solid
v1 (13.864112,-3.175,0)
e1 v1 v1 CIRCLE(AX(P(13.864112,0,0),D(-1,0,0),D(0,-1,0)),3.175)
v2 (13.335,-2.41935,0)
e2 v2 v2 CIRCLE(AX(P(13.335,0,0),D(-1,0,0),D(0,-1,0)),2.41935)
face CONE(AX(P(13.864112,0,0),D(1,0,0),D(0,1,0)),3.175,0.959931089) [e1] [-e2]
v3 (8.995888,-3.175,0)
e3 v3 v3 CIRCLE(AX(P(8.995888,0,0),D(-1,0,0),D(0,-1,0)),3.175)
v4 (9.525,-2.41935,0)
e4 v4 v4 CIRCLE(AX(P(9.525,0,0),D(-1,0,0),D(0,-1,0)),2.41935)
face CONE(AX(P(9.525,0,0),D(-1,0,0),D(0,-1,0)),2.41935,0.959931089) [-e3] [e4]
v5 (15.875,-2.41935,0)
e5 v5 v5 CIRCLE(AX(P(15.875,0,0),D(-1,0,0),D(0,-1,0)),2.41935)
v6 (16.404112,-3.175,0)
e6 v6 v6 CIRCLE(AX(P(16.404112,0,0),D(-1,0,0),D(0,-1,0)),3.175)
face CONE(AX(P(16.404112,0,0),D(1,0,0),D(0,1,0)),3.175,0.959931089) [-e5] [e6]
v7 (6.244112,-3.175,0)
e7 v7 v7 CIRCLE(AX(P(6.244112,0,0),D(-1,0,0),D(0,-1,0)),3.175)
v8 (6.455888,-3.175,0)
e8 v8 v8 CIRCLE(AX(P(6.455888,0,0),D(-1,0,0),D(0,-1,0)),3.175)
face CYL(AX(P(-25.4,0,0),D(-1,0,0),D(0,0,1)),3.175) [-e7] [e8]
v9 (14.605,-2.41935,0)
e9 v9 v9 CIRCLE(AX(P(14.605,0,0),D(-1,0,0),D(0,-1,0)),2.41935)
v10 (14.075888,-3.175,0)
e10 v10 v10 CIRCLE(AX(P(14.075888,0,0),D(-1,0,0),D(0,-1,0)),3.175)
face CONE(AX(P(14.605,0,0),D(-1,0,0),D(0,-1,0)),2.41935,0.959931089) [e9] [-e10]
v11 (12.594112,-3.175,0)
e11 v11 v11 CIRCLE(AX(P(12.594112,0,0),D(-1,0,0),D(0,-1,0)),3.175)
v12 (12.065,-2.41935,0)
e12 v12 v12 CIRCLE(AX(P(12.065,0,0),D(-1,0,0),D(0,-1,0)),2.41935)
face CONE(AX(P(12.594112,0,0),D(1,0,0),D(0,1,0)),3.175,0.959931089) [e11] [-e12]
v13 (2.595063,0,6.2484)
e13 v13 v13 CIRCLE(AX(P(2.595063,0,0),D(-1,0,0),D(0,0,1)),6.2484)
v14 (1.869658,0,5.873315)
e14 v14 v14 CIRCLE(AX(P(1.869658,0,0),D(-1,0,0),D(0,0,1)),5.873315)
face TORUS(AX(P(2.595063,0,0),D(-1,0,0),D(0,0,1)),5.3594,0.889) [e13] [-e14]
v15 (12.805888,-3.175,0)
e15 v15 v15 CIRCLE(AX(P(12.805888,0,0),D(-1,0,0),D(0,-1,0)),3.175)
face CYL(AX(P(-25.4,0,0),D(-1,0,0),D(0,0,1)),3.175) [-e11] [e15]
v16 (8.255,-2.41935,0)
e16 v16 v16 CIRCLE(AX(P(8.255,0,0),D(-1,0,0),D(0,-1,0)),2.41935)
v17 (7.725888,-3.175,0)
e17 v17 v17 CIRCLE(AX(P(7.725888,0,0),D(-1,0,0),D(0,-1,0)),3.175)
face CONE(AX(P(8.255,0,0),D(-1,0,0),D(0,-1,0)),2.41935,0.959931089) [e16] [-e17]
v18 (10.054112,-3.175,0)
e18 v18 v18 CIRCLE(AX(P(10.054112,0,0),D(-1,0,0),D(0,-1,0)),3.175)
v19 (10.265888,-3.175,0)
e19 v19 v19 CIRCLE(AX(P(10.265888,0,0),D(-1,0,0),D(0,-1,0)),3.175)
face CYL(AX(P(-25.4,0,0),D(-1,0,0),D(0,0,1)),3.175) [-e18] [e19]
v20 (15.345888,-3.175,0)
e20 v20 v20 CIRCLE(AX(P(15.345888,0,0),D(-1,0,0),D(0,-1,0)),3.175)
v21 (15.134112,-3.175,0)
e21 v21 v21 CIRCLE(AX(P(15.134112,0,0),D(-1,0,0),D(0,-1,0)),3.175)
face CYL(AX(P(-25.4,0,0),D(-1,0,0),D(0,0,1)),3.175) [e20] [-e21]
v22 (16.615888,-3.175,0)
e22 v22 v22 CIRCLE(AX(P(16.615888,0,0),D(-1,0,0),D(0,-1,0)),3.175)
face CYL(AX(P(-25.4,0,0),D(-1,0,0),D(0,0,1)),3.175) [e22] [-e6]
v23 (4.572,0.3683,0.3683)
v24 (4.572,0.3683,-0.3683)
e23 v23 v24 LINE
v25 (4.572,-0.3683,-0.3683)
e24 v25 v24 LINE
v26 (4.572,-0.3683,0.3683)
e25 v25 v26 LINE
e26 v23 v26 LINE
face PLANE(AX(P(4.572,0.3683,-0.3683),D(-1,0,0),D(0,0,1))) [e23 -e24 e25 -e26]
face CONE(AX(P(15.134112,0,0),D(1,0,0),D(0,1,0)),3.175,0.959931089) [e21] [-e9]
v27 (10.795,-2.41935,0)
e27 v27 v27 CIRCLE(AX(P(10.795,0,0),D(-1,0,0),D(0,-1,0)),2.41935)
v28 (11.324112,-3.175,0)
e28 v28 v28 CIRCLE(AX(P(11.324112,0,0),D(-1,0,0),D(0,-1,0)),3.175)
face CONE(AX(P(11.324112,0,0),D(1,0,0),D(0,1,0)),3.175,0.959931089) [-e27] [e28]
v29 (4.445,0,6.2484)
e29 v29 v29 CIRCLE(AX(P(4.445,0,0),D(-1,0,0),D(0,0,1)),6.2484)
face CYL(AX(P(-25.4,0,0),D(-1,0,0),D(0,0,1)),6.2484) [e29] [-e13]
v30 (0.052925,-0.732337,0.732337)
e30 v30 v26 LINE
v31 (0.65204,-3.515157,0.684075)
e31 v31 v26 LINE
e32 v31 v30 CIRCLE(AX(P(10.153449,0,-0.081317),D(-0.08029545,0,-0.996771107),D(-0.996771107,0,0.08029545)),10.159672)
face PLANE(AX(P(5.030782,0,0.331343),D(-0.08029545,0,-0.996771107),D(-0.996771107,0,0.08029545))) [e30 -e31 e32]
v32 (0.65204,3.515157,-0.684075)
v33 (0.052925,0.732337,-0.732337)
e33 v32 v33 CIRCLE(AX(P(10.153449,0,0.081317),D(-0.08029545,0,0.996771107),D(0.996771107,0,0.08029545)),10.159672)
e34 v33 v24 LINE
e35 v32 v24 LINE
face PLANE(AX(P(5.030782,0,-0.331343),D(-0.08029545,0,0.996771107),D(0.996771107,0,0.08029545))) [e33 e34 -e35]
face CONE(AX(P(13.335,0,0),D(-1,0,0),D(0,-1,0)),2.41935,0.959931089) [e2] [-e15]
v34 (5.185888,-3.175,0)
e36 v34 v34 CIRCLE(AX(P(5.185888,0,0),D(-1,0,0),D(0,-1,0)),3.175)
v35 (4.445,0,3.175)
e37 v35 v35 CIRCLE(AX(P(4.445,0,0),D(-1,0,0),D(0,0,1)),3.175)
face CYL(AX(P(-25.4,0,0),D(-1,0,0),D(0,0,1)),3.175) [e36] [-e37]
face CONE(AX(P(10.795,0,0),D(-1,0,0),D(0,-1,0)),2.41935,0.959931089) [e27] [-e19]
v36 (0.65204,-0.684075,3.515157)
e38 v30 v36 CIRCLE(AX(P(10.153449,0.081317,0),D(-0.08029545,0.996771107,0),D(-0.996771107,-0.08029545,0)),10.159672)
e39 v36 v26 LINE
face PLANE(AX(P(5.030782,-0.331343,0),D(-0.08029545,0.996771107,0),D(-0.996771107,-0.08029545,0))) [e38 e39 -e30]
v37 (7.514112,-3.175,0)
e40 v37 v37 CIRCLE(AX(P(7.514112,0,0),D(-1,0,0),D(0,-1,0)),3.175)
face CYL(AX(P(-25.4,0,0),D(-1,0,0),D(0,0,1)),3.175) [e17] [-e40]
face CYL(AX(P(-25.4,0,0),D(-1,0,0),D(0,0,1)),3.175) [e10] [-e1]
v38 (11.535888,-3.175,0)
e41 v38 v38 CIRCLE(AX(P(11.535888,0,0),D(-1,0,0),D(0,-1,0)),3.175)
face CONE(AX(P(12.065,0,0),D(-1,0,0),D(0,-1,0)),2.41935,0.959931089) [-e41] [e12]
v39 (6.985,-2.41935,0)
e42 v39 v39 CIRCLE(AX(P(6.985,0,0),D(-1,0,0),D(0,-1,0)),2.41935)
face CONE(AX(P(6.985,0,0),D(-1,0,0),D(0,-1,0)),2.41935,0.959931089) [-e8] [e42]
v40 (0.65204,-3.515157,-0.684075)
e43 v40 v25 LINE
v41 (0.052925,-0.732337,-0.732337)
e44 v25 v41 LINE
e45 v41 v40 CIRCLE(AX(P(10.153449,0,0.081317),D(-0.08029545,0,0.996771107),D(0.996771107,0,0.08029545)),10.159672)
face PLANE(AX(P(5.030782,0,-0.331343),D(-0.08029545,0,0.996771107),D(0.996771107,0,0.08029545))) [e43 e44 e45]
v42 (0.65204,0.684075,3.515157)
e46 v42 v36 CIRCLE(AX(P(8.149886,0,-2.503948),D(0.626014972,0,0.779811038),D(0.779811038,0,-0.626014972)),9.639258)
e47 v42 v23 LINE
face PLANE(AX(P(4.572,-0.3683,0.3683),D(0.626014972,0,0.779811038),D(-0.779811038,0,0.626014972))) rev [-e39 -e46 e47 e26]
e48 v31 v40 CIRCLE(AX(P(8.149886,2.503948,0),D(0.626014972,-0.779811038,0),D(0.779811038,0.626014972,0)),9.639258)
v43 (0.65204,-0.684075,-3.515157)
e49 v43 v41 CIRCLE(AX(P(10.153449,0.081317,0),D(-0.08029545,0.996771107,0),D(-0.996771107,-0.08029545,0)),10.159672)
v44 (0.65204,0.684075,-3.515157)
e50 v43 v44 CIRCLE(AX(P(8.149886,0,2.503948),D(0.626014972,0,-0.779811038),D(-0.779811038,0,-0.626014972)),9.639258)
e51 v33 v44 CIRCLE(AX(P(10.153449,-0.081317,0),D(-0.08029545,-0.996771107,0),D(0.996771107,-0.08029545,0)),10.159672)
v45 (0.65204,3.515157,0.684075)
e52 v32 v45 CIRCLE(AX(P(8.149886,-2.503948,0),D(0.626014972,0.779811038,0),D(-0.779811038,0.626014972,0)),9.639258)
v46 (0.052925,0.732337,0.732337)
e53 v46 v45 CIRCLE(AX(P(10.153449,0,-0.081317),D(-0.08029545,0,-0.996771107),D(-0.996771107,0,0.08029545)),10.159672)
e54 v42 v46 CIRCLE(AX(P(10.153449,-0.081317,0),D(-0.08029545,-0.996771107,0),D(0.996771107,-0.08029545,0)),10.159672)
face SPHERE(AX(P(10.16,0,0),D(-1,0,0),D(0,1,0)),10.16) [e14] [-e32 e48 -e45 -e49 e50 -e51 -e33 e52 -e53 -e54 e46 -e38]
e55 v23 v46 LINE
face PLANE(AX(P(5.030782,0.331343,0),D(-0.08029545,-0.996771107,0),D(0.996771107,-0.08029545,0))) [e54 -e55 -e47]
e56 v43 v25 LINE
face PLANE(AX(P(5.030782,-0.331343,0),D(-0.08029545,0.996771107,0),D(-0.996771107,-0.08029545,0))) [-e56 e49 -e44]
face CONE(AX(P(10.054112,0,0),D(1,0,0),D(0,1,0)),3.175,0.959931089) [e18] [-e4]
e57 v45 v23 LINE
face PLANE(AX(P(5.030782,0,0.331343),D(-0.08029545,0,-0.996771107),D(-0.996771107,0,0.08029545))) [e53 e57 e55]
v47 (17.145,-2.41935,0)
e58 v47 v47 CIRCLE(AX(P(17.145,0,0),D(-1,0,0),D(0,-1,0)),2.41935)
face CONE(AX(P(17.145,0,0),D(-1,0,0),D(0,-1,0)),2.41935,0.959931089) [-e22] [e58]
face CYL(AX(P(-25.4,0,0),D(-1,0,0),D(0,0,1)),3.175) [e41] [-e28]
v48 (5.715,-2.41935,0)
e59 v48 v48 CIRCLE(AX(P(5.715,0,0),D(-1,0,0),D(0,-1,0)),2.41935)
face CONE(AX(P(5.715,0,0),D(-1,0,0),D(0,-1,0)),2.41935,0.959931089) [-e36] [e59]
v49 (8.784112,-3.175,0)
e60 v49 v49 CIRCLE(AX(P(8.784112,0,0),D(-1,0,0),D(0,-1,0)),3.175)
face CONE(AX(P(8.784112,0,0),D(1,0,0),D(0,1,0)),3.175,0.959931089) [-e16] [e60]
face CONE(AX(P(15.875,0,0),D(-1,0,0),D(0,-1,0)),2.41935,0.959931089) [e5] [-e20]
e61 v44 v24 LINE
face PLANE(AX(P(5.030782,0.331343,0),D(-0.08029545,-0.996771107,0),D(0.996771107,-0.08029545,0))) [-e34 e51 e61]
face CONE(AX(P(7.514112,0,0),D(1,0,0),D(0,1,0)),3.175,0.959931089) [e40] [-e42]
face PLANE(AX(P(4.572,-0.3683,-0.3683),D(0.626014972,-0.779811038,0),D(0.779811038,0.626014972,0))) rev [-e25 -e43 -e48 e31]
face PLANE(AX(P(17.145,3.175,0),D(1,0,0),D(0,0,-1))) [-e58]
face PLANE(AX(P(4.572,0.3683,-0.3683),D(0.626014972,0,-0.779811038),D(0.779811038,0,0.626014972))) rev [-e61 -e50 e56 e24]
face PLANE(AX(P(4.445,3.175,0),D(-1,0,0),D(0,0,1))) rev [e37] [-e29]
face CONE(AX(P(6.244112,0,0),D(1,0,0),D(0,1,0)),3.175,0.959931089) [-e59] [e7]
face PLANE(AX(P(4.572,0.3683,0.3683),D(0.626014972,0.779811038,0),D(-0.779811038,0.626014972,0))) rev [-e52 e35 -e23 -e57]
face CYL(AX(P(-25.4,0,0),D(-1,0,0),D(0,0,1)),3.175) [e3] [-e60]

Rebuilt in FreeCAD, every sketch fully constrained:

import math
import FreeCAD as App
import Part
import Sketcher

V = App.Vector
Q = App.Units.Quantity


def add_polygon(sketch, points):
    """Adds a closed chain of lines whose ends are joined by coincident constraints."""
    first, n = sketch.GeometryCount, len(points)
    for a, b in zip(points, points[1:] + points[:1]):
        sketch.addGeometry(Part.LineSegment(App.Vector(*a, 0), App.Vector(*b, 0)), False)
    for i in range(n):
        sketch.addConstraint(Sketcher.Constraint("Coincident", first + i, 2, first + (i + 1) % n, 1))

doc = App.newDocument("Part")
params = doc.addObject("Spreadsheet::Sheet", "Params")
for row, (alias, value) in enumerate([
    ("sketch1_radius", "0.4 in"),
    ("sketch1_width", "0.5 in"),
    ("sketch1_radius2", "0.035 in"),
    ("sketch1_width2", "0.675 in"),
    ("sketch1_height", "0.121 in"),
    ("revolution_angle", "360 deg"),
    ("sketch2_width", "0.318 in"),
    ("sketch2_height", "0.058 in"),
    ("sketch3_width", "0.029 in"),
    ("sketch4_height", "0.03125 in"),
    ("groove_angle", "360 deg"),
    ("linearpattern_pitch", "0.05 in"),
], start=1):
    params.set(f"A{row}", alias)
    params.set(f"B{row}", "=" + value)
    params.setAlias(f"B{row}", alias)

body = doc.addObject("PartDesign::Body", "Body")

# Sketch on XY plane
sketch1 = doc.addObject("Sketcher::SketchObject", "Sketch")
body.addObject(sketch1)
sketch1.AttachmentSupport = (doc.XY_Plane, [""])
sketch1.MapMode = "FlatFace"
sketch1.addGeometry([
    Part.LineSegment(V(4.445, 3.175, 0), V(4.445, 6.2484, 0)),  # 0
    Part.LineSegment(V(4.445, 6.2484, 0), V(2.595063, 6.2484, 0)),  # 1
    Part.ArcOfCircle(Part.Circle(V(2.595063, 5.3594, 0), V(0, 0, 1), 0.889), math.radians(90), math.radians(144.684233)),  # 2
    Part.ArcOfCircle(Part.Circle(V(10.16, 0, 0), V(0, 0, 1), 10.16), math.radians(144.684233), math.radians(180)),  # 3
    Part.LineSegment(V(0, 0, 0), V(17.145, 0, 0)),  # 4
    Part.LineSegment(V(17.145, 0, 0), V(17.145, 3.175, 0)),  # 5
    Part.LineSegment(V(17.145, 3.175, 0), V(4.445, 3.175, 0)),  # 6
], False)
sketch1.addConstraint([
    Sketcher.Constraint("Coincident", 0, 2, 1, 1),
    Sketcher.Constraint("Tangent", 1, 2, 2, 1),
    Sketcher.Constraint("Tangent", 2, 2, 3, 1),
    Sketcher.Constraint("Coincident", 3, 2, 4, 1),
    Sketcher.Constraint("Coincident", 4, 2, 5, 1),
    Sketcher.Constraint("Coincident", 5, 2, 6, 1),
    Sketcher.Constraint("Coincident", 6, 2, 0, 1),
    Sketcher.Constraint("Vertical", 0),
    Sketcher.Constraint("Horizontal", 1),
    Sketcher.Constraint("Horizontal", 4),
    Sketcher.Constraint("Vertical", 5),
    Sketcher.Constraint("Horizontal", 6),
    Sketcher.Constraint("Coincident", 3, 2, -1, 1),
    Sketcher.Constraint("PointOnObject", 3, 3, -1),
    Sketcher.Constraint("Radius", 3, Q("0.4 in")),
    Sketcher.Constraint("DistanceX", 6, 2, 6, 1, Q("0.5 in")),
    Sketcher.Constraint("Radius", 2, Q("0.035 in")),
    Sketcher.Constraint("DistanceX", 4, 1, 4, 2, Q("0.675 in")),
    Sketcher.Constraint("DistanceY", 0, 1, 0, 2, Q("0.121 in")),
    Sketcher.Constraint("DistanceY", 5, 1, 5, 2, Q("0.125 in")),
])
sketch1.setExpression("Constraints[14]", "Params.sketch1_radius")
sketch1.setExpression("Constraints[15]", "Params.sketch1_width")
sketch1.setExpression("Constraints[16]", "Params.sketch1_radius2")
sketch1.setExpression("Constraints[17]", "Params.sketch1_width2")
sketch1.setExpression("Constraints[18]", "Params.sketch1_height")
revolution = doc.addObject("PartDesign::Revolution", "Revolution")
body.addObject(revolution)
revolution.Profile = sketch1
revolution.ReferenceAxis = (sketch1, ["H_Axis"])
revolution.setExpression("Angle", "Params.revolution_angle")

# Sketch on YZ plane
sketch2 = doc.addObject("Sketcher::SketchObject", "Sketch001")
body.addObject(sketch2)
sketch2.AttachmentSupport = (doc.YZ_Plane, [""])
sketch2.MapMode = "FlatFace"
add_polygon(sketch2, [(-4.0386, 0.7366), (-4.0386, -0.7366), (4.0386, -0.7366), (4.0386, 0.7366)])  # lines 0-3
sketch2.addConstraint([
    Sketcher.Constraint("Vertical", 0),
    Sketcher.Constraint("Horizontal", 1),
    Sketcher.Constraint("Vertical", 2),
    Sketcher.Constraint("Horizontal", 3),
    Sketcher.Constraint("Symmetric", 0, 2, 2, 2, -1, 1),
    Sketcher.Constraint("DistanceX", 1, 1, 1, 2, Q("0.318 in")),
    Sketcher.Constraint("DistanceY", 0, 2, 0, 1, Q("0.058 in")),
])
sketch2.setExpression("Constraints[9]", "Params.sketch2_width")
sketch2.setExpression("Constraints[10]", "Params.sketch2_height")

# Sketch on YZ plane
sketch3 = doc.addObject("Sketcher::SketchObject", "Sketch002")
body.addObject(sketch3)
sketch3.AttachmentSupport = (doc.YZ_Plane, [""])
sketch3.MapMode = "FlatFace"
sketch3.AttachmentOffset = App.Placement(V(0, 0, 0.18 * 25.4), App.Rotation())
add_polygon(sketch3, [(-0.3683, 0.3683), (-0.3683, -0.3683), (0.3683, -0.3683), (0.3683, 0.3683)])  # lines 0-3
sketch3.addConstraint([
    Sketcher.Constraint("Vertical", 0),
    Sketcher.Constraint("Horizontal", 1),
    Sketcher.Constraint("Vertical", 2),
    Sketcher.Constraint("Horizontal", 3),
    Sketcher.Constraint("Symmetric", 0, 2, 2, 2, -1, 1),
    Sketcher.Constraint("Equal", 3, 0),
    Sketcher.Constraint("DistanceX", 1, 1, 1, 2, Q("0.029 in")),
])
sketch3.setExpression("Constraints[10]", "Params.sketch3_width")

subtractiveloft = doc.addObject("PartDesign::SubtractiveLoft", "SubtractiveLoft")
body.addObject(subtractiveloft)
subtractiveloft.Profile = sketch2
subtractiveloft.Sections = [sketch3]
doc.recompute()

polarpattern = doc.addObject("PartDesign::PolarPattern", "PolarPattern")
body.addObject(polarpattern)
polarpattern.Originals = [subtractiveloft]
polarpattern.Axis = (doc.X_Axis, [""])
polarpattern.Angle = 90
polarpattern.Occurrences = 2
body.Tip = polarpattern

# Sketch on XY plane
sketch4 = doc.addObject("Sketcher::SketchObject", "Sketch003")
body.addObject(sketch4)
sketch4.AttachmentSupport = (doc.XY_Plane, [""])
sketch4.MapMode = "FlatFace"
add_polygon(sketch4, [(5.715, -2.41935), (5.185888, -3.175), (5.185888, -3.96875), (6.244112, -3.96875), (6.244112, -3.175)])  # lines 0-4
sketch4.addConstraint([
    Sketcher.Constraint("Vertical", 1),
    Sketcher.Constraint("Horizontal", 2),
    Sketcher.Constraint("Vertical", 3),
    Sketcher.Constraint("Horizontal", 0, 2, 3, 2),
    Sketcher.Constraint("Equal", 0, 4),
    Sketcher.Constraint("Angle", 0, Q("-125 deg")),
    Sketcher.Constraint("DistanceY", 1, 2, 1, 1, Q("0.03125 in")),
    Sketcher.Constraint("DistanceY", 0, 2, -1, 1, Q("0.125 in")),
    Sketcher.Constraint("DistanceX", -1, 1, 4, 2, Q("0.225 in")),
    Sketcher.Constraint("DistanceY", 1, 2, 4, 2, Q("0.061 in")),
])
sketch4.setExpression("Constraints[11]", "Params.sketch4_height")
groove = doc.addObject("PartDesign::Groove", "Groove")
body.addObject(groove)
groove.Profile = sketch4
groove.ReferenceAxis = (sketch4, ["H_Axis"])
groove.setExpression("Angle", "Params.groove_angle")
doc.recompute()

linearpattern = doc.addObject("PartDesign::LinearPattern", "LinearPattern")
body.addObject(linearpattern)
linearpattern.Originals = [groove]
linearpattern.Direction = (doc.X_Axis, [""])
linearpattern.Mode = "offset"
linearpattern.setExpression("Offset", "Params.linearpattern_pitch")
linearpattern.Occurrences = 10
body.Tip = linearpattern

doc.recompute()
